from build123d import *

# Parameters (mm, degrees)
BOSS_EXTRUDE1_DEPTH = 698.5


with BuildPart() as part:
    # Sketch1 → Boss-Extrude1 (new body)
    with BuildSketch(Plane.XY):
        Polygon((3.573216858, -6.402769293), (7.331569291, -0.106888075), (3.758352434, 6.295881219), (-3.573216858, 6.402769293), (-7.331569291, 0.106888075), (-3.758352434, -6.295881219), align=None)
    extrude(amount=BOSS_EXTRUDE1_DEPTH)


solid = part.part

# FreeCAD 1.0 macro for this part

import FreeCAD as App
import Part
import Sketcher
from FreeCAD import Vector
Q = App.Units.Quantity

doc = App.newDocument("Part")
params = doc.addObject("Spreadsheet::Sheet", "Params")
for row, (alias, value) in enumerate([
    ("pad1_length", "27.5 in"),
], start=1):
    params.set(f"A{row}", alias)
    params.set(f"B{row}", "=" + value)
    params.setAlias(f"B{row}", alias)

body = doc.addObject("PartDesign::Body", "Body")

sketch1 = doc.addObject("Sketcher::SketchObject", "Sketch")
body.addObject(sketch1)
sketch1.AttachmentSupport = (doc.XY_Plane, [""])
sketch1.MapMode = "FlatFace"
sketch1.addGeometry([
    Part.LineSegment(Vector(4, -6, 0), Vector(7, 0, 0)),
    Part.LineSegment(Vector(7, 0, 0), Vector(4, 6, 0)),
    Part.LineSegment(Vector(4, 6, 0), Vector(-4, 6, 0)),
    Part.LineSegment(Vector(-4, 6, 0), Vector(-7, 0, 0)),
    Part.LineSegment(Vector(-7, 0, 0), Vector(-4, -6, 0)),
    Part.LineSegment(Vector(-4, -6, 0), Vector(4, -6, 0)),
], False)
sketch1.addConstraint([
    Sketcher.Constraint("Coincident", 0, 2, 1, 1),
    Sketcher.Constraint("Coincident", 1, 2, 2, 1),
    Sketcher.Constraint("Coincident", 2, 2, 3, 1),
    Sketcher.Constraint("Coincident", 3, 2, 4, 1),
    Sketcher.Constraint("Coincident", 4, 2, 5, 1),
    Sketcher.Constraint("Coincident", 5, 2, 0, 1),
    Sketcher.Constraint("Symmetric", 0, 2, 3, 2, -1, 1),
    Sketcher.Constraint("Symmetric", 1, 2, 4, 2, -1, 1),
    Sketcher.Constraint("Symmetric", 2, 2, 5, 2, -1, 1),
    Sketcher.Constraint("Equal", 0, 1),
    Sketcher.Constraint("Equal", 1, 2),
    Sketcher.Constraint("Distance", 0, Q("7.332348 mm")),
    Sketcher.Constraint("DistanceX", -1, 1, 0, 2, Q("7.331569 mm")),
    Sketcher.Constraint("DistanceY", 0, 2, -1, 1, Q("0.106888 mm")),
    Sketcher.Constraint("DistanceY", -1, 1, 1, 2, Q("6.295881 mm")),
])
pad1 = doc.addObject("PartDesign::Pad", "Pad")
body.addObject(pad1)
pad1.Profile = sketch1
pad1.setExpression("Length", "Params.pad1_length")

doc.recompute()
